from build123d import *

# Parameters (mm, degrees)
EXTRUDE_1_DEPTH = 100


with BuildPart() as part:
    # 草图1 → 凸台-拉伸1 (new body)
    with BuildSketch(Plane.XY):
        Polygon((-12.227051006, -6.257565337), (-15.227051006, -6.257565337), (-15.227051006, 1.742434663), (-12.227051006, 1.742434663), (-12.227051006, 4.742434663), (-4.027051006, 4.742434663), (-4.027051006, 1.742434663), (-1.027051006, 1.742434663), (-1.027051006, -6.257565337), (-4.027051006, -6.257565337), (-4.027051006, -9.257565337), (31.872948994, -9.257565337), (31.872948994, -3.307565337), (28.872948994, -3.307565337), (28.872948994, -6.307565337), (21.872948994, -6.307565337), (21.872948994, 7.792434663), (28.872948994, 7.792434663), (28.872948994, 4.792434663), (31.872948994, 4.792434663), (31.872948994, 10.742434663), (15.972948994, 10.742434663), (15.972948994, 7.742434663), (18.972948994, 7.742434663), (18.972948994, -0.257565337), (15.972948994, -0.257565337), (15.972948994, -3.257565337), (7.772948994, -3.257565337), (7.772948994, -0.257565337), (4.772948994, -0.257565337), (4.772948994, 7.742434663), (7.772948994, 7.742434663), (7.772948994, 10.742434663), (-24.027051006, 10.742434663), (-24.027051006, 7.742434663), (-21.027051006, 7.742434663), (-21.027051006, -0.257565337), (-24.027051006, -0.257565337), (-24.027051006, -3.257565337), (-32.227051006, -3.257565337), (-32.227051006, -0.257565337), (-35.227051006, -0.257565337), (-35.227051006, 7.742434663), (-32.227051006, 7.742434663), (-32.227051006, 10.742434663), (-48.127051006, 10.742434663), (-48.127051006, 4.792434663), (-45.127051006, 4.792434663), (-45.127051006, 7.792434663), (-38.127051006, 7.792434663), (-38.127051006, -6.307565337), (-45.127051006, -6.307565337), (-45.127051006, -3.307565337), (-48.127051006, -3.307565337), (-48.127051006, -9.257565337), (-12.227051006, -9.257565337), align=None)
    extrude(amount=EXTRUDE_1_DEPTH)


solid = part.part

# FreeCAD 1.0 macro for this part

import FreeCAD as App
import Part
import Sketcher

doc = App.newDocument("Part")
params = doc.addObject("Spreadsheet::Sheet", "Params")
for row, (alias, value) in enumerate([
    ("sketch1_width", "3 mm"),
    ("sketch1_width2", "7 mm"),
    ("sketch1_height", "8 mm"),
    ("sketch1_width3", "8.2 mm"),
    ("sketch1_width4", "35.9 mm"),
    ("pad1_length", "100 mm"),
], start=1):
    params.set(f"A{row}", alias)
    params.set(f"B{row}", "=" + value)
    params.setAlias(f"B{row}", alias)

body = doc.addObject("PartDesign::Body", "Body")

sketch1 = body.newObject("Sketcher::SketchObject", "Sketch")
sketch1.AttachmentSupport = (doc.getObject("XY_Plane"), [""])
sketch1.MapMode = "FlatFace"
sketch1.addGeometry(Part.LineSegment(App.Vector(-12.2, -6.3, 0), App.Vector(-15.2, -6.3, 0)), False)
sketch1.addGeometry(Part.LineSegment(App.Vector(-15.2, -6.3, 0), App.Vector(-15.2, 1.7, 0)), False)
sketch1.addGeometry(Part.LineSegment(App.Vector(-15.2, 1.7, 0), App.Vector(-12.2, 1.7, 0)), False)
sketch1.addGeometry(Part.LineSegment(App.Vector(-12.2, 1.7, 0), App.Vector(-12.2, 4.7, 0)), False)
sketch1.addGeometry(Part.LineSegment(App.Vector(-12.2, 4.7, 0), App.Vector(-4, 4.7, 0)), False)
sketch1.addGeometry(Part.LineSegment(App.Vector(-4, 4.7, 0), App.Vector(-4, 1.7, 0)), False)
sketch1.addGeometry(Part.LineSegment(App.Vector(-4, 1.7, 0), App.Vector(-1, 1.7, 0)), False)
sketch1.addGeometry(Part.LineSegment(App.Vector(-1, 1.7, 0), App.Vector(-1, -6.3, 0)), False)
sketch1.addGeometry(Part.LineSegment(App.Vector(-1, -6.3, 0), App.Vector(-4, -6.3, 0)), False)
sketch1.addGeometry(Part.LineSegment(App.Vector(-4, -6.3, 0), App.Vector(-4, -9.3, 0)), False)
sketch1.addGeometry(Part.LineSegment(App.Vector(-4, -9.3, 0), App.Vector(31.9, -9.3, 0)), False)
sketch1.addGeometry(Part.LineSegment(App.Vector(31.9, -9.3, 0), App.Vector(31.9, -3.3, 0)), False)
sketch1.addGeometry(Part.LineSegment(App.Vector(31.9, -3.3, 0), App.Vector(28.9, -3.3, 0)), False)
sketch1.addGeometry(Part.LineSegment(App.Vector(28.9, -3.3, 0), App.Vector(28.9, -6.3, 0)), False)
sketch1.addGeometry(Part.LineSegment(App.Vector(28.9, -6.3, 0), App.Vector(21.9, -6.3, 0)), False)
sketch1.addGeometry(Part.LineSegment(App.Vector(21.9, -6.3, 0), App.Vector(21.9, 7.8, 0)), False)
sketch1.addGeometry(Part.LineSegment(App.Vector(21.9, 7.8, 0), App.Vector(28.9, 7.8, 0)), False)
sketch1.addGeometry(Part.LineSegment(App.Vector(28.9, 7.8, 0), App.Vector(28.9, 4.8, 0)), False)
sketch1.addGeometry(Part.LineSegment(App.Vector(28.9, 4.8, 0), App.Vector(31.9, 4.8, 0)), False)
sketch1.addGeometry(Part.LineSegment(App.Vector(31.9, 4.8, 0), App.Vector(31.9, 10.7, 0)), False)
sketch1.addGeometry(Part.LineSegment(App.Vector(31.9, 10.7, 0), App.Vector(16, 10.7, 0)), False)
sketch1.addGeometry(Part.LineSegment(App.Vector(16, 10.7, 0), App.Vector(16, 7.7, 0)), False)
sketch1.addGeometry(Part.LineSegment(App.Vector(16, 7.7, 0), App.Vector(19, 7.7, 0)), False)
sketch1.addGeometry(Part.LineSegment(App.Vector(19, 7.7, 0), App.Vector(19, -0.3, 0)), False)
sketch1.addGeometry(Part.LineSegment(App.Vector(19, -0.3, 0), App.Vector(16, -0.3, 0)), False)
sketch1.addGeometry(Part.LineSegment(App.Vector(16, -0.3, 0), App.Vector(16, -3.3, 0)), False)
sketch1.addGeometry(Part.LineSegment(App.Vector(16, -3.3, 0), App.Vector(7.8, -3.3, 0)), False)
sketch1.addGeometry(Part.LineSegment(App.Vector(7.8, -3.3, 0), App.Vector(7.8, -0.3, 0)), False)
sketch1.addGeometry(Part.LineSegment(App.Vector(7.8, -0.3, 0), App.Vector(4.8, -0.3, 0)), False)
sketch1.addGeometry(Part.LineSegment(App.Vector(4.8, -0.3, 0), App.Vector(4.8, 7.7, 0)), False)
sketch1.addGeometry(Part.LineSegment(App.Vector(4.8, 7.7, 0), App.Vector(7.8, 7.7, 0)), False)
sketch1.addGeometry(Part.LineSegment(App.Vector(7.8, 7.7, 0), App.Vector(7.8, 10.7, 0)), False)
sketch1.addGeometry(Part.LineSegment(App.Vector(7.8, 10.7, 0), App.Vector(-24, 10.7, 0)), False)
sketch1.addGeometry(Part.LineSegment(App.Vector(-24, 10.7, 0), App.Vector(-24, 7.7, 0)), False)
sketch1.addGeometry(Part.LineSegment(App.Vector(-24, 7.7, 0), App.Vector(-21, 7.7, 0)), False)
sketch1.addGeometry(Part.LineSegment(App.Vector(-21, 7.7, 0), App.Vector(-21, -0.3, 0)), False)
sketch1.addGeometry(Part.LineSegment(App.Vector(-21, -0.3, 0), App.Vector(-24, -0.3, 0)), False)
sketch1.addGeometry(Part.LineSegment(App.Vector(-24, -0.3, 0), App.Vector(-24, -3.3, 0)), False)
sketch1.addGeometry(Part.LineSegment(App.Vector(-24, -3.3, 0), App.Vector(-32.2, -3.3, 0)), False)
sketch1.addGeometry(Part.LineSegment(App.Vector(-32.2, -3.3, 0), App.Vector(-32.2, -0.3, 0)), False)
sketch1.addGeometry(Part.LineSegment(App.Vector(-32.2, -0.3, 0), App.Vector(-35.2, -0.3, 0)), False)
sketch1.addGeometry(Part.LineSegment(App.Vector(-35.2, -0.3, 0), App.Vector(-35.2, 7.7, 0)), False)
sketch1.addGeometry(Part.LineSegment(App.Vector(-35.2, 7.7, 0), App.Vector(-32.2, 7.7, 0)), False)
sketch1.addGeometry(Part.LineSegment(App.Vector(-32.2, 7.7, 0), App.Vector(-32.2, 10.7, 0)), False)
sketch1.addGeometry(Part.LineSegment(App.Vector(-32.2, 10.7, 0), App.Vector(-48.1, 10.7, 0)), False)
sketch1.addGeometry(Part.LineSegment(App.Vector(-48.1, 10.7, 0), App.Vector(-48.1, 4.8, 0)), False)
sketch1.addGeometry(Part.LineSegment(App.Vector(-48.1, 4.8, 0), App.Vector(-45.1, 4.8, 0)), False)
sketch1.addGeometry(Part.LineSegment(App.Vector(-45.1, 4.8, 0), App.Vector(-45.1, 7.8, 0)), False)
sketch1.addGeometry(Part.LineSegment(App.Vector(-45.1, 7.8, 0), App.Vector(-38.1, 7.8, 0)), False)
sketch1.addGeometry(Part.LineSegment(App.Vector(-38.1, 7.8, 0), App.Vector(-38.1, -6.3, 0)), False)
sketch1.addGeometry(Part.LineSegment(App.Vector(-38.1, -6.3, 0), App.Vector(-45.1, -6.3, 0)), False)
sketch1.addGeometry(Part.LineSegment(App.Vector(-45.1, -6.3, 0), App.Vector(-45.1, -3.3, 0)), False)
sketch1.addGeometry(Part.LineSegment(App.Vector(-45.1, -3.3, 0), App.Vector(-48.1, -3.3, 0)), False)
sketch1.addGeometry(Part.LineSegment(App.Vector(-48.1, -3.3, 0), App.Vector(-48.1, -9.3, 0)), False)
sketch1.addGeometry(Part.LineSegment(App.Vector(-48.1, -9.3, 0), App.Vector(-12.2, -9.3, 0)), False)
sketch1.addGeometry(Part.LineSegment(App.Vector(-12.2, -9.3, 0), App.Vector(-12.2, -6.3, 0)), False)
sketch1.addConstraint(Sketcher.Constraint("Coincident", 0, 2, 1, 1))
sketch1.addConstraint(Sketcher.Constraint("Coincident", 1, 2, 2, 1))
sketch1.addConstraint(Sketcher.Constraint("Coincident", 2, 2, 3, 1))
sketch1.addConstraint(Sketcher.Constraint("Coincident", 3, 2, 4, 1))
sketch1.addConstraint(Sketcher.Constraint("Coincident", 4, 2, 5, 1))
sketch1.addConstraint(Sketcher.Constraint("Coincident", 5, 2, 6, 1))
sketch1.addConstraint(Sketcher.Constraint("Coincident", 6, 2, 7, 1))
sketch1.addConstraint(Sketcher.Constraint("Coincident", 7, 2, 8, 1))
sketch1.addConstraint(Sketcher.Constraint("Coincident", 8, 2, 9, 1))
sketch1.addConstraint(Sketcher.Constraint("Coincident", 9, 2, 10, 1))
sketch1.addConstraint(Sketcher.Constraint("Coincident", 10, 2, 11, 1))
sketch1.addConstraint(Sketcher.Constraint("Coincident", 11, 2, 12, 1))
sketch1.addConstraint(Sketcher.Constraint("Coincident", 12, 2, 13, 1))
sketch1.addConstraint(Sketcher.Constraint("Coincident", 13, 2, 14, 1))
sketch1.addConstraint(Sketcher.Constraint("Coincident", 14, 2, 15, 1))
sketch1.addConstraint(Sketcher.Constraint("Coincident", 15, 2, 16, 1))
sketch1.addConstraint(Sketcher.Constraint("Coincident", 16, 2, 17, 1))
sketch1.addConstraint(Sketcher.Constraint("Coincident", 17, 2, 18, 1))
sketch1.addConstraint(Sketcher.Constraint("Coincident", 18, 2, 19, 1))
sketch1.addConstraint(Sketcher.Constraint("Coincident", 19, 2, 20, 1))
sketch1.addConstraint(Sketcher.Constraint("Coincident", 20, 2, 21, 1))
sketch1.addConstraint(Sketcher.Constraint("Coincident", 21, 2, 22, 1))
sketch1.addConstraint(Sketcher.Constraint("Coincident", 22, 2, 23, 1))
sketch1.addConstraint(Sketcher.Constraint("Coincident", 23, 2, 24, 1))
sketch1.addConstraint(Sketcher.Constraint("Coincident", 24, 2, 25, 1))
sketch1.addConstraint(Sketcher.Constraint("Coincident", 25, 2, 26, 1))
sketch1.addConstraint(Sketcher.Constraint("Coincident", 26, 2, 27, 1))
sketch1.addConstraint(Sketcher.Constraint("Coincident", 27, 2, 28, 1))
sketch1.addConstraint(Sketcher.Constraint("Coincident", 28, 2, 29, 1))
sketch1.addConstraint(Sketcher.Constraint("Coincident", 29, 2, 30, 1))
sketch1.addConstraint(Sketcher.Constraint("Coincident", 30, 2, 31, 1))
sketch1.addConstraint(Sketcher.Constraint("Coincident", 31, 2, 32, 1))
sketch1.addConstraint(Sketcher.Constraint("Coincident", 32, 2, 33, 1))
sketch1.addConstraint(Sketcher.Constraint("Coincident", 33, 2, 34, 1))
sketch1.addConstraint(Sketcher.Constraint("Coincident", 34, 2, 35, 1))
sketch1.addConstraint(Sketcher.Constraint("Coincident", 35, 2, 36, 1))
sketch1.addConstraint(Sketcher.Constraint("Coincident", 36, 2, 37, 1))
sketch1.addConstraint(Sketcher.Constraint("Coincident", 37, 2, 38, 1))
sketch1.addConstraint(Sketcher.Constraint("Coincident", 38, 2, 39, 1))
sketch1.addConstraint(Sketcher.Constraint("Coincident", 39, 2, 40, 1))
sketch1.addConstraint(Sketcher.Constraint("Coincident", 40, 2, 41, 1))
sketch1.addConstraint(Sketcher.Constraint("Coincident", 41, 2, 42, 1))
sketch1.addConstraint(Sketcher.Constraint("Coincident", 42, 2, 43, 1))
sketch1.addConstraint(Sketcher.Constraint("Coincident", 43, 2, 44, 1))
sketch1.addConstraint(Sketcher.Constraint("Coincident", 44, 2, 45, 1))
sketch1.addConstraint(Sketcher.Constraint("Coincident", 45, 2, 46, 1))
sketch1.addConstraint(Sketcher.Constraint("Coincident", 46, 2, 47, 1))
sketch1.addConstraint(Sketcher.Constraint("Coincident", 47, 2, 48, 1))
sketch1.addConstraint(Sketcher.Constraint("Coincident", 48, 2, 49, 1))
sketch1.addConstraint(Sketcher.Constraint("Coincident", 49, 2, 50, 1))
sketch1.addConstraint(Sketcher.Constraint("Coincident", 50, 2, 51, 1))
sketch1.addConstraint(Sketcher.Constraint("Coincident", 51, 2, 52, 1))
sketch1.addConstraint(Sketcher.Constraint("Coincident", 52, 2, 53, 1))
sketch1.addConstraint(Sketcher.Constraint("Coincident", 53, 2, 54, 1))
sketch1.addConstraint(Sketcher.Constraint("Coincident", 54, 2, 55, 1))
sketch1.addConstraint(Sketcher.Constraint("Coincident", 55, 2, 0, 1))
sketch1.addConstraint(Sketcher.Constraint("Horizontal", 0))
sketch1.addConstraint(Sketcher.Constraint("Vertical", 1))
sketch1.addConstraint(Sketcher.Constraint("Horizontal", 2))
sketch1.addConstraint(Sketcher.Constraint("Vertical", 3))
sketch1.addConstraint(Sketcher.Constraint("Horizontal", 4))
sketch1.addConstraint(Sketcher.Constraint("Vertical", 5))
sketch1.addConstraint(Sketcher.Constraint("Horizontal", 6))
sketch1.addConstraint(Sketcher.Constraint("Vertical", 7))
sketch1.addConstraint(Sketcher.Constraint("Horizontal", 8))
sketch1.addConstraint(Sketcher.Constraint("Vertical", 9))
sketch1.addConstraint(Sketcher.Constraint("Horizontal", 10))
sketch1.addConstraint(Sketcher.Constraint("Vertical", 11))
sketch1.addConstraint(Sketcher.Constraint("Horizontal", 12))
sketch1.addConstraint(Sketcher.Constraint("Vertical", 13))
sketch1.addConstraint(Sketcher.Constraint("Horizontal", 14))
sketch1.addConstraint(Sketcher.Constraint("Vertical", 15))
sketch1.addConstraint(Sketcher.Constraint("Horizontal", 16))
sketch1.addConstraint(Sketcher.Constraint("Vertical", 17))
sketch1.addConstraint(Sketcher.Constraint("Horizontal", 18))
sketch1.addConstraint(Sketcher.Constraint("Vertical", 19))
sketch1.addConstraint(Sketcher.Constraint("Horizontal", 20))
sketch1.addConstraint(Sketcher.Constraint("Vertical", 21))
sketch1.addConstraint(Sketcher.Constraint("Horizontal", 22))
sketch1.addConstraint(Sketcher.Constraint("Vertical", 23))
sketch1.addConstraint(Sketcher.Constraint("Horizontal", 24))
sketch1.addConstraint(Sketcher.Constraint("Vertical", 25))
sketch1.addConstraint(Sketcher.Constraint("Horizontal", 26))
sketch1.addConstraint(Sketcher.Constraint("Vertical", 27))
sketch1.addConstraint(Sketcher.Constraint("Horizontal", 28))
sketch1.addConstraint(Sketcher.Constraint("Vertical", 29))
sketch1.addConstraint(Sketcher.Constraint("Horizontal", 30))
sketch1.addConstraint(Sketcher.Constraint("Vertical", 31))
sketch1.addConstraint(Sketcher.Constraint("Horizontal", 32))
sketch1.addConstraint(Sketcher.Constraint("Vertical", 33))
sketch1.addConstraint(Sketcher.Constraint("Horizontal", 34))
sketch1.addConstraint(Sketcher.Constraint("Vertical", 35))
sketch1.addConstraint(Sketcher.Constraint("Horizontal", 36))
sketch1.addConstraint(Sketcher.Constraint("Vertical", 37))
sketch1.addConstraint(Sketcher.Constraint("Horizontal", 38))
sketch1.addConstraint(Sketcher.Constraint("Vertical", 39))
sketch1.addConstraint(Sketcher.Constraint("Horizontal", 40))
sketch1.addConstraint(Sketcher.Constraint("Vertical", 41))
sketch1.addConstraint(Sketcher.Constraint("Horizontal", 42))
sketch1.addConstraint(Sketcher.Constraint("Vertical", 43))
sketch1.addConstraint(Sketcher.Constraint("Horizontal", 44))
sketch1.addConstraint(Sketcher.Constraint("Vertical", 45))
sketch1.addConstraint(Sketcher.Constraint("Horizontal", 46))
sketch1.addConstraint(Sketcher.Constraint("Vertical", 47))
sketch1.addConstraint(Sketcher.Constraint("Horizontal", 48))
sketch1.addConstraint(Sketcher.Constraint("Vertical", 49))
sketch1.addConstraint(Sketcher.Constraint("Horizontal", 50))
sketch1.addConstraint(Sketcher.Constraint("Vertical", 51))
sketch1.addConstraint(Sketcher.Constraint("Horizontal", 52))
sketch1.addConstraint(Sketcher.Constraint("Vertical", 53))
sketch1.addConstraint(Sketcher.Constraint("Horizontal", 54))
sketch1.addConstraint(Sketcher.Constraint("Vertical", 55))
sketch1.addConstraint(Sketcher.Constraint("Horizontal", 2, 2, 5, 2))
sketch1.addConstraint(Sketcher.Constraint("Horizontal", 0, 2, 7, 2))
sketch1.addConstraint(Sketcher.Constraint("Horizontal", 24, 2, 27, 2))
sketch1.addConstraint(Sketcher.Constraint("Horizontal", 22, 2, 29, 2))
sketch1.addConstraint(Sketcher.Constraint("Horizontal", 20, 2, 31, 2))
sketch1.addConstraint(Sketcher.Constraint("Horizontal", 30, 2, 33, 2))
sketch1.addConstraint(Sketcher.Constraint("Horizontal", 28, 2, 35, 2))
sketch1.addConstraint(Sketcher.Constraint("Horizontal", 26, 2, 37, 2))
sketch1.addConstraint(Sketcher.Constraint("Horizontal", 36, 2, 39, 2))
sketch1.addConstraint(Sketcher.Constraint("Horizontal", 34, 2, 41, 2))
sketch1.addConstraint(Sketcher.Constraint("Horizontal", 32, 2, 43, 2))
sketch1.addConstraint(Sketcher.Constraint("Horizontal", 18, 2, 45, 2))
sketch1.addConstraint(Sketcher.Constraint("Horizontal", 16, 2, 47, 2))
sketch1.addConstraint(Sketcher.Constraint("Horizontal", 14, 2, 49, 2))
sketch1.addConstraint(Sketcher.Constraint("Horizontal", 12, 2, 51, 2))
sketch1.addConstraint(Sketcher.Constraint("Horizontal", 10, 2, 53, 2))
sketch1.addConstraint(Sketcher.Constraint("Vertical", 5, 2, 8, 2))
sketch1.addConstraint(Sketcher.Constraint("Vertical", 13, 2, 16, 2))
sketch1.addConstraint(Sketcher.Constraint("Vertical", 11, 2, 18, 2))
sketch1.addConstraint(Sketcher.Constraint("Vertical", 21, 2, 24, 2))
sketch1.addConstraint(Sketcher.Constraint("Vertical", 27, 2, 30, 2))
sketch1.addConstraint(Sketcher.Constraint("Vertical", 33, 2, 36, 2))
sketch1.addConstraint(Sketcher.Constraint("Vertical", 39, 2, 42, 2))
sketch1.addConstraint(Sketcher.Constraint("Vertical", 47, 2, 50, 2))
sketch1.addConstraint(Sketcher.Constraint("Vertical", 45, 2, 52, 2))
sketch1.addConstraint(Sketcher.Constraint("Vertical", 3, 2, 54, 2))
sketch1.addConstraint(Sketcher.Constraint("Equal", 2, 6))
sketch1.addConstraint(Sketcher.Constraint("Equal", 8, 12))
sketch1.addConstraint(Sketcher.Constraint("Equal", 18, 22))
sketch1.addConstraint(Sketcher.Constraint("Equal", 4, 26))
sketch1.addConstraint(Sketcher.Constraint("Equal", 24, 28))
sketch1.addConstraint(Sketcher.Constraint("Equal", 30, 34))
sketch1.addConstraint(Sketcher.Constraint("Equal", 26, 38))
sketch1.addConstraint(Sketcher.Constraint("Equal", 36, 40))
sketch1.addConstraint(Sketcher.Constraint("Equal", 20, 44))
sketch1.addConstraint(Sketcher.Constraint("Equal", 42, 46))
sketch1.addConstraint(Sketcher.Constraint("Equal", 16, 48))
sketch1.addConstraint(Sketcher.Constraint("Equal", 10, 54))
sketch1.addConstraint(Sketcher.Constraint("Equal", 52, 3))
sketch1.addConstraint(Sketcher.Constraint("Equal", 5, 9))
sketch1.addConstraint(Sketcher.Constraint("Equal", 9, 13))
sketch1.addConstraint(Sketcher.Constraint("Equal", 13, 17))
sketch1.addConstraint(Sketcher.Constraint("Equal", 11, 19))
sketch1.addConstraint(Sketcher.Constraint("Equal", 17, 21))
sketch1.addConstraint(Sketcher.Constraint("Equal", 7, 23))
sketch1.addConstraint(Sketcher.Constraint("Equal", 21, 25))
sketch1.addConstraint(Sketcher.Constraint("DistanceX", 0, 2, 0, 1, 3.0))
sketch1.addConstraint(Sketcher.Constraint("DistanceX", 14, 2, 14, 1, 7.0))
sketch1.addConstraint(Sketcher.Constraint("DistanceY", 1, 1, 1, 2, 8.0))
sketch1.addConstraint(Sketcher.Constraint("DistanceX", 4, 1, 4, 2, 8.2))
sketch1.addConstraint(Sketcher.Constraint("DistanceX", 10, 1, 10, 2, 35.9))
sketch1.addConstraint(Sketcher.Constraint("DistanceX", 20, 2, 20, 1, 15.9))
sketch1.addConstraint(Sketcher.Constraint("DistanceY", 15, 1, 15, 2, 14.1))
sketch1.addConstraint(Sketcher.Constraint("DistanceY", 7, 2, 26, 2, 3.0))
sketch1.addConstraint(Sketcher.Constraint("DistanceX", 0, 2, -1, 1, 15.227051))
sketch1.addConstraint(Sketcher.Constraint("DistanceY", 0, 2, -1, 1, 6.257565))
sketch1.setExpression("Constraints[158]", "Params.sketch1_width")
sketch1.setExpression("Constraints[159]", "Params.sketch1_width2")
sketch1.setExpression("Constraints[160]", "Params.sketch1_height")
sketch1.setExpression("Constraints[161]", "Params.sketch1_width3")
sketch1.setExpression("Constraints[162]", "Params.sketch1_width4")
pad1 = body.newObject("PartDesign::Pad", "Pad")
pad1.Profile = sketch1
pad1.setExpression("Length", "Params.pad1_length")

doc.recompute()
